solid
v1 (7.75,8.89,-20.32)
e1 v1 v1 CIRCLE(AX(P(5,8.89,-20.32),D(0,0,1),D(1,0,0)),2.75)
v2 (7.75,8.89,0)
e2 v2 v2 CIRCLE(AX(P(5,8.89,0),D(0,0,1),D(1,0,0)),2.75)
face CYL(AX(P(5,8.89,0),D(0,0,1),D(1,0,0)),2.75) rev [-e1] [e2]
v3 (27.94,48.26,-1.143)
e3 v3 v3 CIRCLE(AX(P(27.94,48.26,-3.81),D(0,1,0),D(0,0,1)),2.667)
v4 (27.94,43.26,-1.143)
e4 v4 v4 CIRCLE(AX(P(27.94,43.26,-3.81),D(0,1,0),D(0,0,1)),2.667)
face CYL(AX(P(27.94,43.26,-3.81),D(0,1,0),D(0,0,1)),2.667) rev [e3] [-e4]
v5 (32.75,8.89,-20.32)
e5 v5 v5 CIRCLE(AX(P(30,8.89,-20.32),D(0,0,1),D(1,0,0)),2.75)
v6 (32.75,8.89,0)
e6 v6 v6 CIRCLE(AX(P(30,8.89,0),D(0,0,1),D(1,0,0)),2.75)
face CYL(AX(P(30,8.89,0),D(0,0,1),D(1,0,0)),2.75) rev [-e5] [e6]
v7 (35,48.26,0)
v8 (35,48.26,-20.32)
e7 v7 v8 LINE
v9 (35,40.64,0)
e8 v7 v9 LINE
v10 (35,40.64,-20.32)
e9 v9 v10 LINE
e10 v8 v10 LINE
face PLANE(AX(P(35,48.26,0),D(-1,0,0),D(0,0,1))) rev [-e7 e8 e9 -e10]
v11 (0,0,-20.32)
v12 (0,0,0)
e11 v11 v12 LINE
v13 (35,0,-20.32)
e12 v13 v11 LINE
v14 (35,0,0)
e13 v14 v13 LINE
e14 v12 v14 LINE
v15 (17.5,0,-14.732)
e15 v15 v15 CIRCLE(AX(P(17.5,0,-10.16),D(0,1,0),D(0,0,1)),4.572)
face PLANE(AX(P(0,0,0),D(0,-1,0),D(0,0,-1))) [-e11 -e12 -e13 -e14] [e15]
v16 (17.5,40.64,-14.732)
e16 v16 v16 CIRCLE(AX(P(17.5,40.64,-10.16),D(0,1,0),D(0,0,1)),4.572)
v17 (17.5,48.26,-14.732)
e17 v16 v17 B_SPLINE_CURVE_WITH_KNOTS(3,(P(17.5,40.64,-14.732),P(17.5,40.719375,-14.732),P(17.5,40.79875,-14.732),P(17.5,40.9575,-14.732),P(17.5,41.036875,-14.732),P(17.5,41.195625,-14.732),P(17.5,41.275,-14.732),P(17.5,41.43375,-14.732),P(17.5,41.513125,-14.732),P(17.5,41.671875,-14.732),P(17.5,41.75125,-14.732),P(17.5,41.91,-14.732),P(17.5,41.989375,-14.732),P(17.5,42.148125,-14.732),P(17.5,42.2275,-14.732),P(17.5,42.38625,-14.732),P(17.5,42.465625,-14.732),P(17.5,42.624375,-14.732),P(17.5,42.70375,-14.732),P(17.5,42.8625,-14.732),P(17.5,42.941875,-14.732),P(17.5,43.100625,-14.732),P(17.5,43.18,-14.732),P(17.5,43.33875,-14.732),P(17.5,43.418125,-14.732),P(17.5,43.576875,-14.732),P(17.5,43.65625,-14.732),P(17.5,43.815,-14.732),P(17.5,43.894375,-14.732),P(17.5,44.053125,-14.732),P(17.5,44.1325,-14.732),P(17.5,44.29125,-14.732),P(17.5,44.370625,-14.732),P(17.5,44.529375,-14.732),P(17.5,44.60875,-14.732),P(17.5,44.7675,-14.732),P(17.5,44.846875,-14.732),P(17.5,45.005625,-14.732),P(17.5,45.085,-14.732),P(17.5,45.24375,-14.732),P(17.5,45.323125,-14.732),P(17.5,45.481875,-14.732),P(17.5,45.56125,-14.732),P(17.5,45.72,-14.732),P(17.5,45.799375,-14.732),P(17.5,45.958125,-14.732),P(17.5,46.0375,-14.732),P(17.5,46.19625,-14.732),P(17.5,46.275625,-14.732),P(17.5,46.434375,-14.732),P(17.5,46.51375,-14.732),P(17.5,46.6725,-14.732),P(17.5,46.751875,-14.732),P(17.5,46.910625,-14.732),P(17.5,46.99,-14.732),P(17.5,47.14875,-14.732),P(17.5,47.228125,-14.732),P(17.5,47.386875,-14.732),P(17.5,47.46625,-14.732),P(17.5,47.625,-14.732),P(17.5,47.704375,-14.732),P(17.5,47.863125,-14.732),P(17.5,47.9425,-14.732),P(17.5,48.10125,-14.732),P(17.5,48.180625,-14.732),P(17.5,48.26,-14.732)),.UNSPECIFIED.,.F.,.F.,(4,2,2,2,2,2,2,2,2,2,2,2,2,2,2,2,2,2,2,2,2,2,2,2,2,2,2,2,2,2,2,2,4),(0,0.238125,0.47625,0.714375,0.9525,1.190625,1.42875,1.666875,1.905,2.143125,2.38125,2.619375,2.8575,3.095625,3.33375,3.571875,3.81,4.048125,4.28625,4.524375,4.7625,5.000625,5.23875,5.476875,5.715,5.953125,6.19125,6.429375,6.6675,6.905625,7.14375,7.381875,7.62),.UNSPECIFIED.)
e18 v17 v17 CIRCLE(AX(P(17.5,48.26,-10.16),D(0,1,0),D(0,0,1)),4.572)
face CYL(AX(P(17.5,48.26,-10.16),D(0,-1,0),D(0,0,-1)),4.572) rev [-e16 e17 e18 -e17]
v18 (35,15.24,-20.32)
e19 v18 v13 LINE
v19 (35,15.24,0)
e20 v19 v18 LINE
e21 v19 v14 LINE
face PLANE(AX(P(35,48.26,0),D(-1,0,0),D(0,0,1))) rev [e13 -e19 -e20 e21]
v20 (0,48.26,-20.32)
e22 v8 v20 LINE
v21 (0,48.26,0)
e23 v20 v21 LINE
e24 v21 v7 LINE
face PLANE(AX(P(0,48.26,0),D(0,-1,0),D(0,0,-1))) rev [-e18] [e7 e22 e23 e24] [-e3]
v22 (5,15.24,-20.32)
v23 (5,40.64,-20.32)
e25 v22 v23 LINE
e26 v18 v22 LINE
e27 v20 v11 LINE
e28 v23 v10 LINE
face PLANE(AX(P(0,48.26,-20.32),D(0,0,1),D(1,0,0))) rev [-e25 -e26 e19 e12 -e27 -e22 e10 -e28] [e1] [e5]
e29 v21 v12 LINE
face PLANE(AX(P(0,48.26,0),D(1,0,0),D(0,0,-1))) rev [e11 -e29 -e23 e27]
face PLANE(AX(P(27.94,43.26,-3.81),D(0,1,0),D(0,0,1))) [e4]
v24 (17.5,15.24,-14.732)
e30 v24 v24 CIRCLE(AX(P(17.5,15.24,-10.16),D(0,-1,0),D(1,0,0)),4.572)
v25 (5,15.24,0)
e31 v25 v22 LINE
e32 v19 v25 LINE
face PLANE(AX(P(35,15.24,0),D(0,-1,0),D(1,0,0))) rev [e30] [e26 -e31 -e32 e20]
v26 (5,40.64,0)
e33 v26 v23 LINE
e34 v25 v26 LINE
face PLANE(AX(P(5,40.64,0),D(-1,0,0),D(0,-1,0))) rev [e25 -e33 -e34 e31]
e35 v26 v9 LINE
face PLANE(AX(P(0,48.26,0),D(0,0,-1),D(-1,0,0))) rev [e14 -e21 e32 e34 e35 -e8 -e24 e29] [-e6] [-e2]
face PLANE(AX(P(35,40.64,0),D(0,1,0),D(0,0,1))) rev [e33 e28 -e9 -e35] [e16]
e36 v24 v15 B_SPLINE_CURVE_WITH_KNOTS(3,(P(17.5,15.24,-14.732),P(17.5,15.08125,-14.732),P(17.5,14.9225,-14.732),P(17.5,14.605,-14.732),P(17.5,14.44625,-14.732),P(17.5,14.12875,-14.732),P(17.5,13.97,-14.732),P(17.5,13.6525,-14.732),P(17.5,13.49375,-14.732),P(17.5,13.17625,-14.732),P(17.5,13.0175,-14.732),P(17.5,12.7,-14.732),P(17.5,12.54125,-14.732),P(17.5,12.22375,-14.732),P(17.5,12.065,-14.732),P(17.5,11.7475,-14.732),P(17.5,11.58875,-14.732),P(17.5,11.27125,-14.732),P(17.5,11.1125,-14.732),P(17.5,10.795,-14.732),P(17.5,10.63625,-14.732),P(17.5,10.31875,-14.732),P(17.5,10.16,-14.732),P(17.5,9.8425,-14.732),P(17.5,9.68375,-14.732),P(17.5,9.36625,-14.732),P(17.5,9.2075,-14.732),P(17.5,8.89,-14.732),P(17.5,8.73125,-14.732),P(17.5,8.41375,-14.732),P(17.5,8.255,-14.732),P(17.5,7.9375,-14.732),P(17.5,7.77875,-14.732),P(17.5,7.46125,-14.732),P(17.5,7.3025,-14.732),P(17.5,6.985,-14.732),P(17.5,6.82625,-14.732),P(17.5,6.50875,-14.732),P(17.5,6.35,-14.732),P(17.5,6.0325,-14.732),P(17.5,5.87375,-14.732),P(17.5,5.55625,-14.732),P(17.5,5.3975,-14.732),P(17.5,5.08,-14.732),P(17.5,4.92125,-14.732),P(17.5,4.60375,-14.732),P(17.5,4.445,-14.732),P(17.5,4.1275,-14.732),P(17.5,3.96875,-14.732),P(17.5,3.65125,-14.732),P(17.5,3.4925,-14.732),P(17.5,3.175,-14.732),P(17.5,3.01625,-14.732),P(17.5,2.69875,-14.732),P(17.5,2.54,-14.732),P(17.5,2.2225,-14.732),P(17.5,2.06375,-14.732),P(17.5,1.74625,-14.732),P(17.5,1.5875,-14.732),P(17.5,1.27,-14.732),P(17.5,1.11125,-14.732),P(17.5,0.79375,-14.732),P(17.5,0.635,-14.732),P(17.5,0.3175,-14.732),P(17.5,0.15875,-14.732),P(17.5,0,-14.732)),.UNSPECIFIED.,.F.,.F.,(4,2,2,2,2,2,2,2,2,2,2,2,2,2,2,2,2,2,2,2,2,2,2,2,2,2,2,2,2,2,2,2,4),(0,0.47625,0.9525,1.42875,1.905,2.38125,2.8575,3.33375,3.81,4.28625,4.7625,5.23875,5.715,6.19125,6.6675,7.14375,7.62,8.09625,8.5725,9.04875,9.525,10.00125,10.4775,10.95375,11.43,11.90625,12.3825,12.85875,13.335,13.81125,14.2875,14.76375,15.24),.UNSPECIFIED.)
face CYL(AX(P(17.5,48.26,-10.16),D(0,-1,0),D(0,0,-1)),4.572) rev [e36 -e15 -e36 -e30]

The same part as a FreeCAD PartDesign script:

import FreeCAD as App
import Part
import Sketcher
from FreeCAD import Vector
Q = App.Units.Quantity

doc = App.newDocument("Part")
params = doc.addObject("Spreadsheet::Sheet", "Params")
for row, (alias, value) in enumerate([
    ("sketch1_diameter", "0.36 in"),
    ("sketch1_height", "0.8 in"),
    ("pad1_length", "1.9 in"),
    ("hole_diameter", "5.5 mm"),
    ("sketch3_diameter", "0.21 in"),
    ("pocket1_length", "5 mm"),
    ("sketch4_height", "1 in"),
], start=1):
    params.set(f"A{row}", alias)
    params.set(f"B{row}", "=" + value)
    params.setAlias(f"B{row}", alias)

body = doc.addObject("PartDesign::Body", "Body")

# Sketch on XZ plane
sketch1 = body.newObject("Sketcher::SketchObject", "Sketch")
sketch1.AttachmentSupport = (doc.getObject("XZ_Plane"), [""])
sketch1.MapMode = "FlatFace"
sketch1.addGeometry([
    Part.LineSegment(Vector(0, -20.32, 0), Vector(0, 0, 0)),  # 0
    Part.LineSegment(Vector(0, 0, 0), Vector(35, 0, 0)),  # 1
    Part.LineSegment(Vector(35, 0, 0), Vector(35, -20.32, 0)),  # 2
    Part.LineSegment(Vector(35, -20.32, 0), Vector(0, -20.32, 0)),  # 3
    Part.Circle(Vector(17.5, -10.16, 0), Vector(0, 0, 1), 4.572),  # 4
], False)
sketch1.addConstraint([
    Sketcher.Constraint("Coincident", 0, 2, 1, 1),
    Sketcher.Constraint("Coincident", 1, 2, 2, 1),
    Sketcher.Constraint("Coincident", 2, 2, 3, 1),
    Sketcher.Constraint("Coincident", 3, 2, 0, 1),
    Sketcher.Constraint("Vertical", 0),
    Sketcher.Constraint("Horizontal", 1),
    Sketcher.Constraint("Vertical", 2),
    Sketcher.Constraint("Horizontal", 3),
    Sketcher.Constraint("Coincident", 0, 2, -1, 1),
    Sketcher.Constraint("Diameter", 4, Q("0.36 in")),
    Sketcher.Constraint("DistanceY", 0, 1, 0, 2, Q("0.8 in")),
    Sketcher.Constraint("DistanceY", 4, 3, -1, 1, Q("0.4 in")),
    Sketcher.Constraint("DistanceX", 1, 1, 1, 2, Q("35 mm")),
    Sketcher.Constraint("DistanceX", -1, 1, 4, 3, Q("17.5 mm")),
])
sketch1.setExpression("Constraints[9]", "Params.sketch1_diameter")
sketch1.setExpression("Constraints[10]", "Params.sketch1_height")
pad1 = body.newObject("PartDesign::Pad", "Pad")
pad1.Profile = sketch1
pad1.setExpression("Length", "Params.pad1_length")
pad1.Reversed = True

# Sketch on XY plane
sketch2 = body.newObject("Sketcher::SketchObject", "Sketch001")
sketch2.AttachmentSupport = (doc.getObject("XY_Plane"), [""])
sketch2.MapMode = "FlatFace"
sketch2.addGeometry([
    Part.Circle(Vector(5, 8.89, 0), Vector(0, 0, 1), 2.75),
    Part.Circle(Vector(30, 8.89, 0), Vector(0, 0, 1), 2.75),
], False)
sketch2.addConstraint([
    Sketcher.Constraint("Equal", 0, 1),
    Sketcher.Constraint("Horizontal", 0, 3, 1, 3),
    Sketcher.Constraint("Diameter", 0, Q("5.5 mm")),
    Sketcher.Constraint("DistanceY", -1, 1, 0, 3, Q("0.35 in")),
    Sketcher.Constraint("DistanceX", -1, 1, 0, 3, Q("5 mm")),
    Sketcher.Constraint("DistanceX", -1, 1, 1, 3, Q("30 mm")),
])
doc.recompute()
hole = body.newObject("PartDesign::Hole", "Hole")
hole.Profile = sketch2
hole.ThreadType = "None"
hole.setExpression("Diameter", "Params.hole_diameter")
hole.DepthType = "ThroughAll"

# Sketch on XZ plane
sketch3 = body.newObject("Sketcher::SketchObject", "Sketch002")
sketch3.AttachmentSupport = (doc.getObject("XZ_Plane"), [""])
sketch3.MapMode = "FlatFace"
sketch3.AttachmentOffset = App.Placement(Vector(0, 0, -1.9 * 25.4), App.Rotation())
sketch3.addGeometry(Part.Circle(Vector(27.94, -3.81, 0), Vector(0, 0, 1), 2.667), False)
sketch3.addConstraint([
    Sketcher.Constraint("Diameter", 0, Q("0.21 in")),
    Sketcher.Constraint("DistanceX", -1, 1, 0, 3, Q("1.1 in")),
    Sketcher.Constraint("DistanceY", 0, 3, -1, 1, Q("0.15 in")),
])
sketch3.setExpression("Constraints[0]", "Params.sketch3_diameter")
pocket1 = body.newObject("PartDesign::Pocket", "Pocket")
pocket1.Profile = sketch3
pocket1.setExpression("Length", "Params.pocket1_length")
pocket1.Reversed = True

# Sketch on XY plane
sketch4 = body.newObject("Sketcher::SketchObject", "Sketch003")
sketch4.AttachmentSupport = (doc.getObject("XY_Plane"), [""])
sketch4.MapMode = "FlatFace"
sketch4.AttachmentOffset = App.Placement(Vector(0, 0, -0.8 * 25.4), App.Rotation())
sketch4.addGeometry([
    Part.LineSegment(Vector(35, 40.64, 0), Vector(35, 15.24, 0)),
    Part.LineSegment(Vector(35, 15.24, 0), Vector(5, 15.24, 0)),
    Part.LineSegment(Vector(5, 15.24, 0), Vector(5, 40.64, 0)),
    Part.LineSegment(Vector(5, 40.64, 0), Vector(35, 40.64, 0)),
], False)
sketch4.addConstraint([
    Sketcher.Constraint("Coincident", 0, 2, 1, 1),
    Sketcher.Constraint("Coincident", 1, 2, 2, 1),
    Sketcher.Constraint("Coincident", 2, 2, 3, 1),
    Sketcher.Constraint("Coincident", 3, 2, 0, 1),
    Sketcher.Constraint("Vertical", 0),
    Sketcher.Constraint("Horizontal", 1),
    Sketcher.Constraint("Vertical", 2),
    Sketcher.Constraint("Horizontal", 3),
    Sketcher.Constraint("DistanceY", 0, 2, 0, 1, Q("1 in")),
    Sketcher.Constraint("DistanceY", -1, 1, 0, 2, Q("0.6 in")),
    Sketcher.Constraint("DistanceX", 1, 2, 1, 1, Q("30 mm")),
    Sketcher.Constraint("DistanceX", -1, 1, 0, 2, Q("35 mm")),
])
sketch4.setExpression("Constraints[8]", "Params.sketch4_height")
pocket2 = body.newObject("PartDesign::Pocket", "Pocket001")
pocket2.Profile = sketch4
pocket2.Type = "ThroughAll"
pocket2.Reversed = True

doc.recompute()
